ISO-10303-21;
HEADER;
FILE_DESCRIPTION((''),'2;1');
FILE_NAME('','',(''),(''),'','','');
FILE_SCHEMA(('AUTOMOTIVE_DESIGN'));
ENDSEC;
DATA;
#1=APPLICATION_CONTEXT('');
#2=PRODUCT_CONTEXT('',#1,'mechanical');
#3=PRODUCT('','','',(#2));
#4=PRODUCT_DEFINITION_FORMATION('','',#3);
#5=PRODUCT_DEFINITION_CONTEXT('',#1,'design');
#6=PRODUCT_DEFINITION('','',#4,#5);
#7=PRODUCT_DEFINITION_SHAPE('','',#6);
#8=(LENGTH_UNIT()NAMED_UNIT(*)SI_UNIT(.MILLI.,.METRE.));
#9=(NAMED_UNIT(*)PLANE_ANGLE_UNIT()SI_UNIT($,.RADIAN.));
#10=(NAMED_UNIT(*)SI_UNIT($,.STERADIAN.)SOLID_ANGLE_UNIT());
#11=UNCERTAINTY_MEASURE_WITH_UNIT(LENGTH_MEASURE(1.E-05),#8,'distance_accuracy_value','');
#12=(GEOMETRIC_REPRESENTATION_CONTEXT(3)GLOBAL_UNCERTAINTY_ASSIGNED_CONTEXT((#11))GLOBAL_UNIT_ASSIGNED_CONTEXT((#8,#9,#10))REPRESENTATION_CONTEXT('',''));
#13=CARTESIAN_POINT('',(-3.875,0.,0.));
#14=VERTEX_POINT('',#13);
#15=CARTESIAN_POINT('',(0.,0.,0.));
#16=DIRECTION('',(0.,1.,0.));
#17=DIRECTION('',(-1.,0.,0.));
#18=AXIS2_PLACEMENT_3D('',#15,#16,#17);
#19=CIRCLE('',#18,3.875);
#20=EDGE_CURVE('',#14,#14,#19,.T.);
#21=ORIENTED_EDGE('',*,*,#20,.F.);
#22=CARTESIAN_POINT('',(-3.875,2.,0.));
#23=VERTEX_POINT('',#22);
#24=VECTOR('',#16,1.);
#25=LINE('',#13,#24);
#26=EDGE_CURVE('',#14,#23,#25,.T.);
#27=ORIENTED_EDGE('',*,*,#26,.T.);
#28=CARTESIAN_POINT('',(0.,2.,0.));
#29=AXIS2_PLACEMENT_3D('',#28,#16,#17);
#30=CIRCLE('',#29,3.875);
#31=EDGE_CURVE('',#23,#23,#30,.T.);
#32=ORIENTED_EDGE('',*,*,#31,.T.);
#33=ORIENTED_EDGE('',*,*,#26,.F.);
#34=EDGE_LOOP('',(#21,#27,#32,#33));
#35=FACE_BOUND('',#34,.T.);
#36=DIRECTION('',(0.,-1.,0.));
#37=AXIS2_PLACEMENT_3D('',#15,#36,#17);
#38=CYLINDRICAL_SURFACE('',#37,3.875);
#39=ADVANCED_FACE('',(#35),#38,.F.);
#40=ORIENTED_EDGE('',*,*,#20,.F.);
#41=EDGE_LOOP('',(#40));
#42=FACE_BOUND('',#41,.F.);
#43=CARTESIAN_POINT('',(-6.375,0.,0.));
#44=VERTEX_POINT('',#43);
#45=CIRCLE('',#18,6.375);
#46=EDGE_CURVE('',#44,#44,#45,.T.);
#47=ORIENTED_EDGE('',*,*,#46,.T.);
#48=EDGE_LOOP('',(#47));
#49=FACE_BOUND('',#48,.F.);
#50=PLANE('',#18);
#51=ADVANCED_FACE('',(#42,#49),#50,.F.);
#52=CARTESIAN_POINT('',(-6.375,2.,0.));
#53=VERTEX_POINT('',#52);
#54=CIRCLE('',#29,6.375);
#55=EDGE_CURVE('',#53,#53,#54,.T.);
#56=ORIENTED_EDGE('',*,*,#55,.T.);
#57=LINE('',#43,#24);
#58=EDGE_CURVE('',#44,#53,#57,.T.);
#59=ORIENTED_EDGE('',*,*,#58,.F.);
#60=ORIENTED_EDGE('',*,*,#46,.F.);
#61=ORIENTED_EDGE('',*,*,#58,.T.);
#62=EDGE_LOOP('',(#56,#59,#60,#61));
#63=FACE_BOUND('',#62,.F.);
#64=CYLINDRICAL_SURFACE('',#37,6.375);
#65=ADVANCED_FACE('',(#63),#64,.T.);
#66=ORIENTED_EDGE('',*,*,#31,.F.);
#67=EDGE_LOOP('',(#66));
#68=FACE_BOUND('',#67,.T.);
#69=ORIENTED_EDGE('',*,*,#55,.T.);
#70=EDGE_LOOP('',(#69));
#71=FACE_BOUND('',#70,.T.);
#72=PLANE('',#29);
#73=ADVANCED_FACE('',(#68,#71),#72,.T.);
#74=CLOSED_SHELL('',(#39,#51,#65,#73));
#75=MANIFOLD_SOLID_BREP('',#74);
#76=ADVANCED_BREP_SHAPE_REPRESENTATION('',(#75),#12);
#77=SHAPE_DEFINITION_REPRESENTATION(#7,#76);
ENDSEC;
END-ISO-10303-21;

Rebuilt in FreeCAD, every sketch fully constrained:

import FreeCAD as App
import Part
import Sketcher

V = App.Vector

doc = App.newDocument("Part")
params = doc.addObject("Spreadsheet::Sheet", "Params")
for row, (alias, value) in enumerate([
    ("sketch1_diameter", "7.75 mm"),
    ("sketch1_diameter2", "12.75 mm"),
    ("pad1_length", "2 mm"),
], start=1):
    params.set(f"A{row}", alias)
    params.set(f"B{row}", "=" + value)
    params.setAlias(f"B{row}", alias)

body = doc.addObject("PartDesign::Body", "Body")

# Sketch on XZ plane
sketch1 = body.newObject("Sketcher::SketchObject", "Sketch")
sketch1.AttachmentSupport = (doc.getObject("XZ_Plane"), [""])
sketch1.MapMode = "FlatFace"
sketch1.addGeometry([
    Part.Circle(V(0, 0, 0), V(0, 0, 1), 6.4),
    Part.Circle(V(0, 0, 0), V(0, 0, 1), 3.9),
], False)
sketch1.addConstraint([
    Sketcher.Constraint("Coincident", 0, 3, -1, 1),
    Sketcher.Constraint("Coincident", 1, 3, -1, 1),
    Sketcher.Constraint("Diameter", 1, 7.75),
    Sketcher.Constraint("Diameter", 0, 12.75),
])
sketch1.setExpression("Constraints[2]", "Params.sketch1_diameter")
sketch1.setExpression("Constraints[3]", "Params.sketch1_diameter2")
pad1 = body.newObject("PartDesign::Pad", "Pad")
pad1.Profile = sketch1
pad1.setExpression("Length", "Params.pad1_length")
pad1.Reversed = True

doc.recompute()
